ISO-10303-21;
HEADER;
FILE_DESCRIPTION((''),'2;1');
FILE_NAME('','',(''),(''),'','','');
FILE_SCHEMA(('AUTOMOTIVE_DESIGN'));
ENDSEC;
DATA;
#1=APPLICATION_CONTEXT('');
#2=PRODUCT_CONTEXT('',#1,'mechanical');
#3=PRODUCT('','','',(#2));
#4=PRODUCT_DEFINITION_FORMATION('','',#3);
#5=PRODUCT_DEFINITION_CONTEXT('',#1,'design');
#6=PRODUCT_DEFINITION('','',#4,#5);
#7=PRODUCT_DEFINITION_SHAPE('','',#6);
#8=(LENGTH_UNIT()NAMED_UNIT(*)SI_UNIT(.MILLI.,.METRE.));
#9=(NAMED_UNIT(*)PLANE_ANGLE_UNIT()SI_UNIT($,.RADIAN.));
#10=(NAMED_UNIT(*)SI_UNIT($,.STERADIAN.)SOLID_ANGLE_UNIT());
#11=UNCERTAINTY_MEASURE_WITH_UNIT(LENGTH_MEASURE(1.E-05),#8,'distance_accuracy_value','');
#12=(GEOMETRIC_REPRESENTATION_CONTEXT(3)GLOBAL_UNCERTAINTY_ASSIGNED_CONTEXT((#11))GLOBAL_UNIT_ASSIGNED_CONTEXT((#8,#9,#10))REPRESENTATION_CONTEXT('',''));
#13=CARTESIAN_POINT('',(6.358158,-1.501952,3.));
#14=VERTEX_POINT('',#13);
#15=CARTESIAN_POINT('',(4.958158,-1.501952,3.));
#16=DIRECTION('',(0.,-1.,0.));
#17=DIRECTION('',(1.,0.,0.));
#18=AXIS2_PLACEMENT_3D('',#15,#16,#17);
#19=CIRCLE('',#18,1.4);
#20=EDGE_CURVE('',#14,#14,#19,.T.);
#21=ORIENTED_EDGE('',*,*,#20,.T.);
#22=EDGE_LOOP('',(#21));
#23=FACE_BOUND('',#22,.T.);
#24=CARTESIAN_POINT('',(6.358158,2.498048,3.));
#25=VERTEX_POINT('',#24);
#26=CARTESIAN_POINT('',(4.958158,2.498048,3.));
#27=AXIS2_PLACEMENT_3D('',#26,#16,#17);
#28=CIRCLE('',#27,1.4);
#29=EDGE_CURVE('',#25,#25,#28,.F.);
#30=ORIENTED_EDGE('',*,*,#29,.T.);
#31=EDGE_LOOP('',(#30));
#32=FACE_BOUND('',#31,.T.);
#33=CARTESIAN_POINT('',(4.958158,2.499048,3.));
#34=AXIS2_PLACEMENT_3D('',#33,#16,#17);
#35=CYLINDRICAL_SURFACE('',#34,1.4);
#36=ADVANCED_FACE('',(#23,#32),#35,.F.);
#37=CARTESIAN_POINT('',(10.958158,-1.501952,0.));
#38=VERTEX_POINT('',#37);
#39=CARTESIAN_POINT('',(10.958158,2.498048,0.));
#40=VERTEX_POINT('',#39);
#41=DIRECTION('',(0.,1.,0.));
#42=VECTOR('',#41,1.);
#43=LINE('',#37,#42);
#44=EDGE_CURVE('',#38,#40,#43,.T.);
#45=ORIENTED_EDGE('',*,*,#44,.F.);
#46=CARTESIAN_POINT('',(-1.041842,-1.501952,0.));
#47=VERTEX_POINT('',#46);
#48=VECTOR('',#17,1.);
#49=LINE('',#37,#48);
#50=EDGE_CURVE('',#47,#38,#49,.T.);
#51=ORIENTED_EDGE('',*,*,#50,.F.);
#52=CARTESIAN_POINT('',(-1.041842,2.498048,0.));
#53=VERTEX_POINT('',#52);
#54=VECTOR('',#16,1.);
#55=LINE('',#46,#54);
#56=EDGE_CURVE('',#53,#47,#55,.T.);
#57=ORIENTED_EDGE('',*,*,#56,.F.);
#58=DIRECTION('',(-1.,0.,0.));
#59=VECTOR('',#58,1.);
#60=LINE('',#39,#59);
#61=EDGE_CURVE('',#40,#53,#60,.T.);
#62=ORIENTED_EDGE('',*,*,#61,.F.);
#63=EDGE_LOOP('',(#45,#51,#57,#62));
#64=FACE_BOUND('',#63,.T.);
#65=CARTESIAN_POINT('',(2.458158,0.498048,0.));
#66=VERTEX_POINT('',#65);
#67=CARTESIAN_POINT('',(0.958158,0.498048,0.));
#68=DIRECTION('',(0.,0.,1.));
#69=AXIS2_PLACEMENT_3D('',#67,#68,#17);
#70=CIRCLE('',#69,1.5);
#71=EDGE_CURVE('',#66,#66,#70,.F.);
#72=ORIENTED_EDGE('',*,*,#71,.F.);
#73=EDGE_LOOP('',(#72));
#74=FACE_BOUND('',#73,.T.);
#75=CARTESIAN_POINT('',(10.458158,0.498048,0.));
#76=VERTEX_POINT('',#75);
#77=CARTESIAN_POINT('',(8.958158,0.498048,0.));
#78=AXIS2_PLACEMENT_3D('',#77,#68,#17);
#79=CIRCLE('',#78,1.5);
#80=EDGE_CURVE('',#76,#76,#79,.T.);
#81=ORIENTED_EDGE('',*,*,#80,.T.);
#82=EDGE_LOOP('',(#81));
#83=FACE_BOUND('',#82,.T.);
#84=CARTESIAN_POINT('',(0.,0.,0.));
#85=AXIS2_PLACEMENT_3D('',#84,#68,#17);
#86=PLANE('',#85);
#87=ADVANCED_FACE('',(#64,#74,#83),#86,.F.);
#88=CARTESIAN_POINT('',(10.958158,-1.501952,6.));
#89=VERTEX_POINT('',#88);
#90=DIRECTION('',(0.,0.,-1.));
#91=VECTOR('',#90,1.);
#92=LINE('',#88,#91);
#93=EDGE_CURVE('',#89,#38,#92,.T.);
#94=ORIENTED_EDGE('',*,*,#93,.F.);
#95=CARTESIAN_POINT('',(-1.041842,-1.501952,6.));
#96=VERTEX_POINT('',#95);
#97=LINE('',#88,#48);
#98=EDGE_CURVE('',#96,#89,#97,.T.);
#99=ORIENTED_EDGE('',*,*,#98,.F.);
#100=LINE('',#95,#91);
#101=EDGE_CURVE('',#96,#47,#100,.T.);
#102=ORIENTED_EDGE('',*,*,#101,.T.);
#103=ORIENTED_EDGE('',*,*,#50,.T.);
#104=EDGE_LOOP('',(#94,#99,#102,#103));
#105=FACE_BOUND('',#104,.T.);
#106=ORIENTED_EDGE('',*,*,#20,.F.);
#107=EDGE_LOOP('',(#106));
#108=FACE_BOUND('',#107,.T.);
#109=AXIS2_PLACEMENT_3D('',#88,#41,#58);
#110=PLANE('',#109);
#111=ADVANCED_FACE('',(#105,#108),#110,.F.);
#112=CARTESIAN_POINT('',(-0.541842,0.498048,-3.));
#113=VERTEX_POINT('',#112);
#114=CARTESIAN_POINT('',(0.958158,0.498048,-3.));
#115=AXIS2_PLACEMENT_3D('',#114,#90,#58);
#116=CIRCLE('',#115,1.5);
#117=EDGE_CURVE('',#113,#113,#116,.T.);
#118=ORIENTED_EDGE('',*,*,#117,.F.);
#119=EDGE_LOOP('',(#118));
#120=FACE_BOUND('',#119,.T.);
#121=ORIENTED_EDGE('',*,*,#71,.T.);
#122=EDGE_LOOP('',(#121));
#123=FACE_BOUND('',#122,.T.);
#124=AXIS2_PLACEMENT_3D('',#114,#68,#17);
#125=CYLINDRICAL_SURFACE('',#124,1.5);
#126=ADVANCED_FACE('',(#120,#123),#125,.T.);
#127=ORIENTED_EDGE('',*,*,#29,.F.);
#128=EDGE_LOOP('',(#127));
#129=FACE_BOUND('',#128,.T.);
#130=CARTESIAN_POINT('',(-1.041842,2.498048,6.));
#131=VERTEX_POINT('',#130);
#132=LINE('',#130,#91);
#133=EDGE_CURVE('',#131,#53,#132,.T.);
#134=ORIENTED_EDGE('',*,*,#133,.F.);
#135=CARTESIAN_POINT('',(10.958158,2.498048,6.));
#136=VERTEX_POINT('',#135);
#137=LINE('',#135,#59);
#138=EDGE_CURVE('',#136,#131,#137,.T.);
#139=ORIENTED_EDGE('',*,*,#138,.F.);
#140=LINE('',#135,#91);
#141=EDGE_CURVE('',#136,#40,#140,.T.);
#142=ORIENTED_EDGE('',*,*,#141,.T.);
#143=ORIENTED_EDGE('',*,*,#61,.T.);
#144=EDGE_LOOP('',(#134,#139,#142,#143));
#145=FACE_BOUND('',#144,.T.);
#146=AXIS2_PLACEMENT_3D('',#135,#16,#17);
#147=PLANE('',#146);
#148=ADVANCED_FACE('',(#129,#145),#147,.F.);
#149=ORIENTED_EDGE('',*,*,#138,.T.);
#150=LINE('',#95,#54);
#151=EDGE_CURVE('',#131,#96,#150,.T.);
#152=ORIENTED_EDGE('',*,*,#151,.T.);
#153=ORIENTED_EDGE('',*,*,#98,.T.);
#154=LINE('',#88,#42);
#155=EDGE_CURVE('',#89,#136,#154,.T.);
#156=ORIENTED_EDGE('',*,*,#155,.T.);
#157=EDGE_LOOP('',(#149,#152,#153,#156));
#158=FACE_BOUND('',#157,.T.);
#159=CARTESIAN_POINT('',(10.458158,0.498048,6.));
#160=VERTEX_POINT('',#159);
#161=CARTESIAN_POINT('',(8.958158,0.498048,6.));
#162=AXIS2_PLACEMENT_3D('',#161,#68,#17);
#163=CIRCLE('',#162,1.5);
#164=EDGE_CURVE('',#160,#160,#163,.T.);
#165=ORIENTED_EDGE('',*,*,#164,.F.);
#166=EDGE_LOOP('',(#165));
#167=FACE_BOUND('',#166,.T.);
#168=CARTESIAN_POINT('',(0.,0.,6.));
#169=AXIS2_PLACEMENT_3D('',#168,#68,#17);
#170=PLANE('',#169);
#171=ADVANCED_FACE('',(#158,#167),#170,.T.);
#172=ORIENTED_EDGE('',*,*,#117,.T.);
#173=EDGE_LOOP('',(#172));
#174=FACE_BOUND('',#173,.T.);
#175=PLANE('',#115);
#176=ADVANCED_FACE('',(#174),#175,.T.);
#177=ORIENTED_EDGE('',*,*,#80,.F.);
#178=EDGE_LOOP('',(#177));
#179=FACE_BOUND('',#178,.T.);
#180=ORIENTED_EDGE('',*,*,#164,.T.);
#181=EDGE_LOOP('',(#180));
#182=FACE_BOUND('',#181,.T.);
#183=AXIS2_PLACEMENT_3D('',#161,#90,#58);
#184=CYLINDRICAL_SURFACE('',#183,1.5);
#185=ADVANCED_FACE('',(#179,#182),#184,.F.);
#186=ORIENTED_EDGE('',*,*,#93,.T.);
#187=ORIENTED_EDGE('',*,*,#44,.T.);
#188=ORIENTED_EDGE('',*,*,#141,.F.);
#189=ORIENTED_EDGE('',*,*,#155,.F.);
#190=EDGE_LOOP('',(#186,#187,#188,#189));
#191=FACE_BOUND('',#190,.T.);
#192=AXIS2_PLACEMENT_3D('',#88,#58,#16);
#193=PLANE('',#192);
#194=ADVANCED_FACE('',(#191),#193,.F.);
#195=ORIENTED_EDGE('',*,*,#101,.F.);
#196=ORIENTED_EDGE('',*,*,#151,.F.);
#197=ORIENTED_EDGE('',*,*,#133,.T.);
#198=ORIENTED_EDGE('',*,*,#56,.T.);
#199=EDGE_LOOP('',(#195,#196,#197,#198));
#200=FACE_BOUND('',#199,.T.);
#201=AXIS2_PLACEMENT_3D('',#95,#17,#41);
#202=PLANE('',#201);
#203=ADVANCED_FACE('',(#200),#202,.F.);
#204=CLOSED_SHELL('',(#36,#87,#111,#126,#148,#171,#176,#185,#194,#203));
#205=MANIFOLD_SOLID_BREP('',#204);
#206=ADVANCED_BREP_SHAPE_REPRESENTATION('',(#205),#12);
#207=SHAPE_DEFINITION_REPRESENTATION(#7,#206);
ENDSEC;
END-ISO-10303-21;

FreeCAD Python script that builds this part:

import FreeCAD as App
import Part
import Sketcher
from FreeCAD import Vector
Q = App.Units.Quantity


def add_polygon(sketch, points):
    """Adds a closed chain of lines whose ends are joined by coincident constraints."""
    first, n = sketch.GeometryCount, len(points)
    for a, b in zip(points, points[1:] + points[:1]):
        sketch.addGeometry(Part.LineSegment(App.Vector(*a, 0), App.Vector(*b, 0)), False)
    for i in range(n):
        sketch.addConstraint(Sketcher.Constraint("Coincident", first + i, 2, first + (i + 1) % n, 1))

doc = App.newDocument("Part")
body = doc.addObject("PartDesign::Body", "Body")

# Sketch on XY plane
sketch1 = doc.addObject("Sketcher::SketchObject", "Sketch")
body.addObject(sketch1)
sketch1.AttachmentSupport = (doc.XY_Plane, [""])
sketch1.MapMode = "FlatFace"
add_polygon(sketch1, [(-1, 2.5), (-1, -1.5), (11, -1.5), (11, 2.5)])  # lines 0-3
sketch1.addGeometry(Part.Circle(Vector(9, 0.5, 0), Vector(0, 0, 1), 1.5), False)  # 4
sketch1.addConstraint([
    Sketcher.Constraint("Vertical", 0),
    Sketcher.Constraint("Horizontal", 1),
    Sketcher.Constraint("Vertical", 2),
    Sketcher.Constraint("Horizontal", 3),
    Sketcher.Constraint("Diameter", 4, Q("3 mm")),
    Sketcher.Constraint("DistanceX", 1, 1, 1, 2, Q("12 mm")),
    Sketcher.Constraint("DistanceY", 0, 2, 0, 1, Q("4 mm")),
    Sketcher.Constraint("DistanceX", 0, 2, 4, 3, Q("10 mm")),
    Sketcher.Constraint("DistanceY", 0, 2, 4, 3, Q("2 mm")),
    Sketcher.Constraint("DistanceY", -1, 1, 4, 3, Q("0.498048 mm")),
    Sketcher.Constraint("DistanceX", -1, 1, 4, 3, Q("8.958158 mm")),
])
pad1 = doc.addObject("PartDesign::Pad", "Pad")
body.addObject(pad1)
pad1.Profile = sketch1
pad1.Length = 6

# Sketch on XY plane
sketch2 = doc.addObject("Sketcher::SketchObject", "Sketch001")
body.addObject(sketch2)
sketch2.AttachmentSupport = (doc.XY_Plane, [""])
sketch2.MapMode = "FlatFace"
sketch2.addGeometry(Part.Circle(Vector(1, 0.5, 0), Vector(0, 0, 1), 1.5), False)
sketch2.addConstraint([
    Sketcher.Constraint("Diameter", 0, Q("3 mm")),
    Sketcher.Constraint("DistanceY", -1, 1, 0, 3, Q("0.498048 mm")),
    Sketcher.Constraint("DistanceX", -1, 1, 0, 3, Q("0.958158 mm")),
])
pad2 = doc.addObject("PartDesign::Pad", "Pad001")
body.addObject(pad2)
pad2.Profile = sketch2
pad2.Length = 3
pad2.Reversed = True

# Sketch on XZ plane
sketch3 = doc.addObject("Sketcher::SketchObject", "Sketch002")
body.addObject(sketch3)
sketch3.AttachmentSupport = (doc.XZ_Plane, [""])
sketch3.MapMode = "FlatFace"
sketch3.AttachmentOffset = App.Placement(Vector(0, 0, 1.501952), App.Rotation())
sketch3.addGeometry(Part.Circle(Vector(5, 3, 0), Vector(0, 0, 1), 1.4), False)
sketch3.addConstraint([
    Sketcher.Constraint("Diameter", 0, Q("2.8 mm")),
    Sketcher.Constraint("DistanceY", -1, 1, 0, 3, Q("3 mm")),
    Sketcher.Constraint("DistanceX", -1, 1, 0, 3, Q("4.958158 mm")),
])
pocket1 = doc.addObject("PartDesign::Pocket", "Pocket")
body.addObject(pocket1)
pocket1.Profile = sketch3
pocket1.Type = "UpToFirst"

doc.recompute()
